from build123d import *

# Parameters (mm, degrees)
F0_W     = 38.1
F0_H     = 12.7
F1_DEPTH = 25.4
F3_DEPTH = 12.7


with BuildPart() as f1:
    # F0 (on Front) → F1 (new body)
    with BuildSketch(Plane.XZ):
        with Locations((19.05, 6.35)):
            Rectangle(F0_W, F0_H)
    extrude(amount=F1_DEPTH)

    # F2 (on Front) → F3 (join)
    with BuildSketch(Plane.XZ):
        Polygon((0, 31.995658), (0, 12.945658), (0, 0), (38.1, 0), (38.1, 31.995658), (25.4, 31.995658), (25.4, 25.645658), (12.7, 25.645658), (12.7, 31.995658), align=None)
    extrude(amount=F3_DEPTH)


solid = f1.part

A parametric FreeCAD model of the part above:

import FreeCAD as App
import Part
import Sketcher
from FreeCAD import Vector
Q = App.Units.Quantity

doc = App.newDocument("Part")
body = doc.addObject("PartDesign::Body", "Body")

sketch1 = doc.addObject("Sketcher::SketchObject", "Sketch")
body.addObject(sketch1)
sketch1.AttachmentSupport = (doc.XZ_Plane, [""])
sketch1.MapMode = "FlatFace"
sketch1.addGeometry(Part.LineSegment(Vector(0, 13, 0), Vector(0, 0, 0)), False)
sketch1.addGeometry(Part.LineSegment(Vector(0, 0, 0), Vector(38, 0, 0)), False)
sketch1.addGeometry(Part.LineSegment(Vector(38, 0, 0), Vector(38, 13, 0)), False)
sketch1.addGeometry(Part.LineSegment(Vector(38, 13, 0), Vector(0, 13, 0)), False)
sketch1.addConstraint(Sketcher.Constraint("Coincident", 0, 2, 1, 1))
sketch1.addConstraint(Sketcher.Constraint("Coincident", 1, 2, 2, 1))
sketch1.addConstraint(Sketcher.Constraint("Coincident", 2, 2, 3, 1))
sketch1.addConstraint(Sketcher.Constraint("Coincident", 3, 2, 0, 1))
sketch1.addConstraint(Sketcher.Constraint("Vertical", 0))
sketch1.addConstraint(Sketcher.Constraint("Horizontal", 1))
sketch1.addConstraint(Sketcher.Constraint("Vertical", 2))
sketch1.addConstraint(Sketcher.Constraint("Horizontal", 3))
sketch1.addConstraint(Sketcher.Constraint("Coincident", 0, 2, -1, 1))
sketch1.addConstraint(Sketcher.Constraint("DistanceX", 1, 1, 1, 2, Q("1.5 in")))
sketch1.addConstraint(Sketcher.Constraint("DistanceY", 0, 2, 0, 1, Q("0.5 in")))
pad1 = doc.addObject("PartDesign::Pad", "Pad")
body.addObject(pad1)
pad1.Profile = sketch1
pad1.Length = Q("1 in")

sketch2 = doc.addObject("Sketcher::SketchObject", "Sketch001")
body.addObject(sketch2)
sketch2.AttachmentSupport = (doc.XZ_Plane, [""])
sketch2.MapMode = "FlatFace"
sketch2.addGeometry(Part.LineSegment(Vector(0, 32, 0), Vector(0, 0, 0)), False)
sketch2.addGeometry(Part.LineSegment(Vector(0, 0, 0), Vector(38, 0, 0)), False)
sketch2.addGeometry(Part.LineSegment(Vector(38, 0, 0), Vector(38, 32, 0)), False)
sketch2.addGeometry(Part.LineSegment(Vector(38, 32, 0), Vector(25, 32, 0)), False)
sketch2.addGeometry(Part.LineSegment(Vector(25, 32, 0), Vector(25, 26, 0)), False)
sketch2.addGeometry(Part.LineSegment(Vector(25, 26, 0), Vector(13, 26, 0)), False)
sketch2.addGeometry(Part.LineSegment(Vector(13, 26, 0), Vector(13, 32, 0)), False)
sketch2.addGeometry(Part.LineSegment(Vector(13, 32, 0), Vector(0, 32, 0)), False)
sketch2.addConstraint(Sketcher.Constraint("Coincident", 0, 2, 1, 1))
sketch2.addConstraint(Sketcher.Constraint("Coincident", 1, 2, 2, 1))
sketch2.addConstraint(Sketcher.Constraint("Coincident", 2, 2, 3, 1))
sketch2.addConstraint(Sketcher.Constraint("Coincident", 3, 2, 4, 1))
sketch2.addConstraint(Sketcher.Constraint("Coincident", 4, 2, 5, 1))
sketch2.addConstraint(Sketcher.Constraint("Coincident", 5, 2, 6, 1))
sketch2.addConstraint(Sketcher.Constraint("Coincident", 6, 2, 7, 1))
sketch2.addConstraint(Sketcher.Constraint("Coincident", 7, 2, 0, 1))
sketch2.addConstraint(Sketcher.Constraint("Vertical", 0))
sketch2.addConstraint(Sketcher.Constraint("Horizontal", 1))
sketch2.addConstraint(Sketcher.Constraint("Vertical", 2))
sketch2.addConstraint(Sketcher.Constraint("Horizontal", 3))
sketch2.addConstraint(Sketcher.Constraint("Vertical", 4))
sketch2.addConstraint(Sketcher.Constraint("Horizontal", 5))
sketch2.addConstraint(Sketcher.Constraint("Vertical", 6))
sketch2.addConstraint(Sketcher.Constraint("Horizontal", 7))
sketch2.addConstraint(Sketcher.Constraint("Coincident", 0, 2, -1, 1))
sketch2.addConstraint(Sketcher.Constraint("Horizontal", 3, 2, 6, 2))
sketch2.addConstraint(Sketcher.Constraint("Equal", 3, 5))
sketch2.addConstraint(Sketcher.Constraint("Equal", 5, 7))
sketch2.addConstraint(Sketcher.Constraint("DistanceX", 1, 1, 1, 2, Q("1.5 in")))
sketch2.addConstraint(Sketcher.Constraint("DistanceY", 4, 2, 4, 1, Q("0.25 in")))
sketch2.addConstraint(Sketcher.Constraint("DistanceY", 0, 2, 0, 1, Q("31.995658 mm")))
pad2 = doc.addObject("PartDesign::Pad", "Pad001")
body.addObject(pad2)
pad2.Profile = sketch2
pad2.Length = Q("0.5 in")

doc.recompute()
